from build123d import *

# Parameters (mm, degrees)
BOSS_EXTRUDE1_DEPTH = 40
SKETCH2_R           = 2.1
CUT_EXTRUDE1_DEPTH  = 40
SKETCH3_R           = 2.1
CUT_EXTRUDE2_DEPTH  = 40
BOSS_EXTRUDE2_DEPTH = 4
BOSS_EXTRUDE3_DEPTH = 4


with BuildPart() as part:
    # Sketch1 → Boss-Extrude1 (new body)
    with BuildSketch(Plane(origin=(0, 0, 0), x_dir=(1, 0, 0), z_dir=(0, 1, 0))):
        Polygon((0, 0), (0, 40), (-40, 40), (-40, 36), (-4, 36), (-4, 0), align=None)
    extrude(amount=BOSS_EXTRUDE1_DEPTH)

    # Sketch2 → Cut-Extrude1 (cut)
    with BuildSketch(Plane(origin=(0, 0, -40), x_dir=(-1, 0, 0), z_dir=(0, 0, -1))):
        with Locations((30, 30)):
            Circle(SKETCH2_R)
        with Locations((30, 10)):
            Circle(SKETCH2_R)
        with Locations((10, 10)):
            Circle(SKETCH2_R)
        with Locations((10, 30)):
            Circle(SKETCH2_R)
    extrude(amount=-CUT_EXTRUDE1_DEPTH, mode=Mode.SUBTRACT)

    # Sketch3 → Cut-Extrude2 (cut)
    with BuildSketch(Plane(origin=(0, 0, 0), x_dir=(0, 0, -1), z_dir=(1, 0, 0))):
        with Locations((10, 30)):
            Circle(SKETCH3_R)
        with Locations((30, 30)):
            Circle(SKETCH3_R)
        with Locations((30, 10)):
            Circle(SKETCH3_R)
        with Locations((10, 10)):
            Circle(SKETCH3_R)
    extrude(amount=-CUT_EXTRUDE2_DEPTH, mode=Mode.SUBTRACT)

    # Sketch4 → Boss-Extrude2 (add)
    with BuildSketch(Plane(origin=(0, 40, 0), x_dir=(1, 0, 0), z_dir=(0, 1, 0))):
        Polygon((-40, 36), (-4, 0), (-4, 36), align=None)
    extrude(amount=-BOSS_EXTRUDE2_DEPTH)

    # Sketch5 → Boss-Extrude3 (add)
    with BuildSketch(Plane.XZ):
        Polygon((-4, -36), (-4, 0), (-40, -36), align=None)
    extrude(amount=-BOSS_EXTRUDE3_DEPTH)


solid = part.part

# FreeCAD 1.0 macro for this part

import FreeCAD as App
import Part
import Sketcher

doc = App.newDocument("Part")
params = doc.addObject("Spreadsheet::Sheet", "Params")
for row, (alias, value) in enumerate([
    ("sketch1_width", "40 mm"),
    ("sketch1_width2", "36 mm"),
    ("pad1_length", "40 mm"),
    ("sketch2_diameter", "4.2 mm"),
    ("pocket1_length", "40 mm"),
    ("sketch3_diameter", "4.2 mm"),
    ("pocket2_length", "40 mm"),
    ("sketch4_width", "36 mm"),
    ("pad2_length", "4 mm"),
    ("sketch5_width", "36 mm"),
    ("pad3_length", "4 mm"),
], start=1):
    params.set(f"A{row}", alias)
    params.set(f"B{row}", "=" + value)
    params.setAlias(f"B{row}", alias)

body = doc.addObject("PartDesign::Body", "Body")

# Sketch on XZ plane
sketch1 = body.newObject("Sketcher::SketchObject", "Sketch")
sketch1.AttachmentSupport = (doc.getObject("XZ_Plane"), [""])
sketch1.MapMode = "FlatFace"
sketch1.addGeometry([
    Part.LineSegment(App.Vector(0, 0, 0), App.Vector(0, -40, 0)),  # 0
    Part.LineSegment(App.Vector(0, -40, 0), App.Vector(-40, -40, 0)),  # 1
    Part.LineSegment(App.Vector(-40, -40, 0), App.Vector(-40, -36, 0)),  # 2
    Part.LineSegment(App.Vector(-40, -36, 0), App.Vector(-4, -36, 0)),  # 3
    Part.LineSegment(App.Vector(-4, -36, 0), App.Vector(-4, 0, 0)),  # 4
    Part.LineSegment(App.Vector(-4, 0, 0), App.Vector(0, 0, 0)),  # 5
], False)
sketch1.addConstraint([
    Sketcher.Constraint("Coincident", 0, 2, 1, 1),
    Sketcher.Constraint("Coincident", 1, 2, 2, 1),
    Sketcher.Constraint("Coincident", 2, 2, 3, 1),
    Sketcher.Constraint("Coincident", 3, 2, 4, 1),
    Sketcher.Constraint("Coincident", 4, 2, 5, 1),
    Sketcher.Constraint("Coincident", 5, 2, 0, 1),
    Sketcher.Constraint("Vertical", 0),
    Sketcher.Constraint("Horizontal", 1),
    Sketcher.Constraint("Vertical", 2),
    Sketcher.Constraint("Horizontal", 3),
    Sketcher.Constraint("Vertical", 4),
    Sketcher.Constraint("Horizontal", 5),
    Sketcher.Constraint("Coincident", 5, 2, -1, 1),
    Sketcher.Constraint("Equal", 1, 0),
    Sketcher.Constraint("Equal", 5, 2),
    Sketcher.Constraint("DistanceX", 1, 2, 1, 1, 40.0),
    Sketcher.Constraint("DistanceX", 3, 1, 3, 2, 36.0),
])
sketch1.setExpression("Constraints[15]", "Params.sketch1_width")
sketch1.setExpression("Constraints[16]", "Params.sketch1_width2")
pad1 = body.newObject("PartDesign::Pad", "Pad")
pad1.Profile = sketch1
pad1.setExpression("Length", "Params.pad1_length")
pad1.Reversed = True

# Sketch on XY plane
sketch2 = body.newObject("Sketcher::SketchObject", "Sketch001")
sketch2.AttachmentSupport = (doc.getObject("XY_Plane"), [""])
sketch2.MapMode = "FlatFace"
sketch2.AttachmentOffset = App.Placement(App.Vector(0, 0, -40), App.Rotation())
sketch2.addGeometry([
    Part.Circle(App.Vector(-30, 30, 0), App.Vector(0, 0, 1), 2.1),
    Part.Circle(App.Vector(-30, 10, 0), App.Vector(0, 0, 1), 2.1),
    Part.Circle(App.Vector(-10, 10, 0), App.Vector(0, 0, 1), 2.1),
    Part.Circle(App.Vector(-10, 30, 0), App.Vector(0, 0, 1), 2.1),
], False)
sketch2.addConstraint([
    Sketcher.Constraint("Equal", 0, 1),
    Sketcher.Constraint("Equal", 1, 2),
    Sketcher.Constraint("Equal", 2, 3),
    Sketcher.Constraint("Horizontal", 1, 3, 2, 3),
    Sketcher.Constraint("Horizontal", 0, 3, 3, 3),
    Sketcher.Constraint("Vertical", 0, 3, 1, 3),
    Sketcher.Constraint("Vertical", 2, 3, 3, 3),
    Sketcher.Constraint("Diameter", 0, 4.2),
    Sketcher.Constraint("DistanceX", 0, 3, -1, 1, 30.0),
    Sketcher.Constraint("DistanceY", -1, 1, 0, 3, 30.0),
    Sketcher.Constraint("DistanceY", -1, 1, 1, 3, 10.0),
    Sketcher.Constraint("DistanceX", 2, 3, -1, 1, 10.0),
])
sketch2.setExpression("Constraints[7]", "Params.sketch2_diameter")
pocket1 = body.newObject("PartDesign::Pocket", "Pocket")
pocket1.Profile = sketch2
pocket1.setExpression("Length", "Params.pocket1_length")
pocket1.Reversed = True

# Sketch on YZ plane
sketch3 = body.newObject("Sketcher::SketchObject", "Sketch002")
sketch3.AttachmentSupport = (doc.getObject("YZ_Plane"), [""])
sketch3.MapMode = "FlatFace"
sketch3.addGeometry([
    Part.Circle(App.Vector(30, -10, 0), App.Vector(0, 0, 1), 2.1),
    Part.Circle(App.Vector(30, -30, 0), App.Vector(0, 0, 1), 2.1),
    Part.Circle(App.Vector(10, -30, 0), App.Vector(0, 0, 1), 2.1),
    Part.Circle(App.Vector(10, -10, 0), App.Vector(0, 0, 1), 2.1),
], False)
sketch3.addConstraint([
    Sketcher.Constraint("Equal", 0, 1),
    Sketcher.Constraint("Equal", 1, 2),
    Sketcher.Constraint("Equal", 2, 3),
    Sketcher.Constraint("Horizontal", 1, 3, 2, 3),
    Sketcher.Constraint("Horizontal", 0, 3, 3, 3),
    Sketcher.Constraint("Vertical", 0, 3, 1, 3),
    Sketcher.Constraint("Vertical", 2, 3, 3, 3),
    Sketcher.Constraint("Diameter", 0, 4.2),
    Sketcher.Constraint("DistanceX", -1, 1, 0, 3, 30.0),
    Sketcher.Constraint("DistanceY", 0, 3, -1, 1, 10.0),
    Sketcher.Constraint("DistanceY", 1, 3, -1, 1, 30.0),
    Sketcher.Constraint("DistanceX", -1, 1, 2, 3, 10.0),
])
sketch3.setExpression("Constraints[7]", "Params.sketch3_diameter")
pocket2 = body.newObject("PartDesign::Pocket", "Pocket001")
pocket2.Profile = sketch3
pocket2.setExpression("Length", "Params.pocket2_length")

# Sketch on XZ plane
sketch4 = body.newObject("Sketcher::SketchObject", "Sketch003")
sketch4.AttachmentSupport = (doc.getObject("XZ_Plane"), [""])
sketch4.MapMode = "FlatFace"
sketch4.AttachmentOffset = App.Placement(App.Vector(0, 0, -40), App.Rotation())
sketch4.addGeometry([
    Part.LineSegment(App.Vector(-40, -36, 0), App.Vector(-4, 0, 0)),
    Part.LineSegment(App.Vector(-4, 0, 0), App.Vector(-4, -36, 0)),
    Part.LineSegment(App.Vector(-4, -36, 0), App.Vector(-40, -36, 0)),
], False)
sketch4.addConstraint([
    Sketcher.Constraint("Coincident", 0, 2, 1, 1),
    Sketcher.Constraint("Coincident", 1, 2, 2, 1),
    Sketcher.Constraint("Coincident", 2, 2, 0, 1),
    Sketcher.Constraint("Vertical", 1),
    Sketcher.Constraint("Horizontal", 2),
    Sketcher.Constraint("PointOnObject", 0, 2, -1),
    Sketcher.Constraint("Equal", 2, 1),
    Sketcher.Constraint("DistanceX", 2, 2, 2, 1, 36.0),
    Sketcher.Constraint("DistanceX", 0, 2, -1, 1, 4.0),
])
sketch4.setExpression("Constraints[7]", "Params.sketch4_width")
pad2 = body.newObject("PartDesign::Pad", "Pad001")
pad2.Profile = sketch4
pad2.setExpression("Length", "Params.pad2_length")

# Sketch on XZ plane
sketch5 = body.newObject("Sketcher::SketchObject", "Sketch004")
sketch5.AttachmentSupport = (doc.getObject("XZ_Plane"), [""])
sketch5.MapMode = "FlatFace"
sketch5.addGeometry([
    Part.LineSegment(App.Vector(-4, -36, 0), App.Vector(-4, 0, 0)),
    Part.LineSegment(App.Vector(-4, 0, 0), App.Vector(-40, -36, 0)),
    Part.LineSegment(App.Vector(-40, -36, 0), App.Vector(-4, -36, 0)),
], False)
sketch5.addConstraint([
    Sketcher.Constraint("Coincident", 0, 2, 1, 1),
    Sketcher.Constraint("Coincident", 1, 2, 2, 1),
    Sketcher.Constraint("Coincident", 2, 2, 0, 1),
    Sketcher.Constraint("Vertical", 0),
    Sketcher.Constraint("Horizontal", 2),
    Sketcher.Constraint("PointOnObject", 0, 2, -1),
    Sketcher.Constraint("Equal", 2, 0),
    Sketcher.Constraint("DistanceX", 2, 1, 2, 2, 36.0),
    Sketcher.Constraint("DistanceX", 0, 2, -1, 1, 4.0),
])
sketch5.setExpression("Constraints[7]", "Params.sketch5_width")
pad3 = body.newObject("PartDesign::Pad", "Pad002")
pad3.Profile = sketch5
pad3.setExpression("Length", "Params.pad3_length")
pad3.Reversed = True

doc.recompute()
